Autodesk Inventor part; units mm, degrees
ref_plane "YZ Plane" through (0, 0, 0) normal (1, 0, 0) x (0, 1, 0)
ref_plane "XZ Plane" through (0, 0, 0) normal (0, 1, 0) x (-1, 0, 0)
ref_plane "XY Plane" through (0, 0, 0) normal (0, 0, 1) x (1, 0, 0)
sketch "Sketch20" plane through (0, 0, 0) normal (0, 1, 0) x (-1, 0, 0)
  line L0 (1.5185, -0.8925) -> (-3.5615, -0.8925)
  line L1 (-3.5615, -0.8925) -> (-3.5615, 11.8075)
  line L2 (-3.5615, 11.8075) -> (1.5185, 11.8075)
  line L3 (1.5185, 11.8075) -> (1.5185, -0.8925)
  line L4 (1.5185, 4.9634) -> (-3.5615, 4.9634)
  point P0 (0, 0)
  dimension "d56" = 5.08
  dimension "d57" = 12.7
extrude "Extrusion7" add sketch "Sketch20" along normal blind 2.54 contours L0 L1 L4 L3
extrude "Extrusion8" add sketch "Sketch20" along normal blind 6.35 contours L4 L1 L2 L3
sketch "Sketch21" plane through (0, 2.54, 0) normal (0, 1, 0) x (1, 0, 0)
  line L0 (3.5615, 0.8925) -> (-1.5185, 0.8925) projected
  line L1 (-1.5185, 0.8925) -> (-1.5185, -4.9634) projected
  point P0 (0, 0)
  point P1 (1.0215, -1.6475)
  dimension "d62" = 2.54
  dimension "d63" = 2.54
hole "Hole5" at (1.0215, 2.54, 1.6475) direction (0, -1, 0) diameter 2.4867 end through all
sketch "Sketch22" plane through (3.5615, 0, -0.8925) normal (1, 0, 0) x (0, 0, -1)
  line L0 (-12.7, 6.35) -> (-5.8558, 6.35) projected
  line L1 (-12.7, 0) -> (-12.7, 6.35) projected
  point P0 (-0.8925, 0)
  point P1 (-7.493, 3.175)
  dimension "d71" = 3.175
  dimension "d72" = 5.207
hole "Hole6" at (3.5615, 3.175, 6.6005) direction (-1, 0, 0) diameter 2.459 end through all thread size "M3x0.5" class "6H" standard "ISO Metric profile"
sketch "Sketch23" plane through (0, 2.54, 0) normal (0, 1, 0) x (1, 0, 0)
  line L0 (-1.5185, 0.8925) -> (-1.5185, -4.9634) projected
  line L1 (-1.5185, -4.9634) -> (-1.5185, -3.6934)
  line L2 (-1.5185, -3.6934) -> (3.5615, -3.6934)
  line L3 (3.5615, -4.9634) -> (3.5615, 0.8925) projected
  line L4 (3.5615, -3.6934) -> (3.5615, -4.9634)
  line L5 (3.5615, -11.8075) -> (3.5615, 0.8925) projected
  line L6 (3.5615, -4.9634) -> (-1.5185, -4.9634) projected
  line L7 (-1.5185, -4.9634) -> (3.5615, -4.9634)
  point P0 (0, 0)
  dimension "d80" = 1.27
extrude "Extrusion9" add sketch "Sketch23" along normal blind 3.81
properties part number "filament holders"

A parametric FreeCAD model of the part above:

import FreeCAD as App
import Part
import Sketcher

V = App.Vector
Q = App.Units.Quantity


def add_polygon(sketch, points):
    """Adds a closed chain of lines whose ends are joined by coincident constraints."""
    first, n = sketch.GeometryCount, len(points)
    for a, b in zip(points, points[1:] + points[:1]):
        sketch.addGeometry(Part.LineSegment(App.Vector(*a, 0), App.Vector(*b, 0)), False)
    for i in range(n):
        sketch.addConstraint(Sketcher.Constraint("Coincident", first + i, 2, first + (i + 1) % n, 1))

doc = App.newDocument("Part")
params = doc.addObject("Spreadsheet::Sheet", "Params")
for row, (alias, value) in enumerate([
    ("sketch1_width", "0.2 in"),
    ("pad1_length", "0.1 in"),
    ("sketch2_width", "0.2 in"),
    ("pad2_length", "0.25 in"),
    ("hole_diameter", "0.0979016 in"),
    ("hole2_diameter", "0.096811 in"),
    ("sketch5_height", "0.05 in"),
    ("sketch5_width", "0.2 in"),
    ("pad3_length", "0.15 in"),
], start=1):
    params.set(f"A{row}", alias)
    params.set(f"B{row}", "=" + value)
    params.setAlias(f"B{row}", alias)

body = doc.addObject("PartDesign::Body", "Body")

# Sketch on XZ plane
sketch1 = body.newObject("Sketcher::SketchObject", "Sketch")
sketch1.AttachmentSupport = (doc.getObject("XZ_Plane"), [""])
sketch1.MapMode = "FlatFace"
add_polygon(sketch1, [(4, -1), (-2, -1), (-2, 5), (4, 5)])  # lines 0-3
sketch1.addConstraint(Sketcher.Constraint("Horizontal", 0))
sketch1.addConstraint(Sketcher.Constraint("Vertical", 1))
sketch1.addConstraint(Sketcher.Constraint("Horizontal", 2))
sketch1.addConstraint(Sketcher.Constraint("Vertical", 3))
sketch1.addConstraint(Sketcher.Constraint("DistanceX", 0, 2, 0, 1, Q("0.2 in")))
sketch1.addConstraint(Sketcher.Constraint("DistanceY", 1, 1, 1, 2, 5.856))
sketch1.addConstraint(Sketcher.Constraint("DistanceY", -1, 1, 1, 2, Q("0.1954 in")))
sketch1.addConstraint(Sketcher.Constraint("DistanceX", 0, 2, -1, 1, 1.5185))
sketch1.setExpression("Constraints[8]", "Params.sketch1_width")
pad1 = body.newObject("PartDesign::Pad", "Pad")
pad1.Profile = sketch1
pad1.setExpression("Length", "Params.pad1_length")
pad1.Reversed = True

# Sketch on XZ plane
sketch2 = body.newObject("Sketcher::SketchObject", "Sketch001")
sketch2.AttachmentSupport = (doc.getObject("XZ_Plane"), [""])
sketch2.MapMode = "FlatFace"
add_polygon(sketch2, [(4, 5), (-2, 5), (-2, 12), (4, 12)])  # lines 0-3
sketch2.addConstraint(Sketcher.Constraint("Horizontal", 0))
sketch2.addConstraint(Sketcher.Constraint("Vertical", 1))
sketch2.addConstraint(Sketcher.Constraint("Horizontal", 2))
sketch2.addConstraint(Sketcher.Constraint("Vertical", 3))
sketch2.addConstraint(Sketcher.Constraint("DistanceX", 0, 2, 0, 1, Q("0.2 in")))
sketch2.addConstraint(Sketcher.Constraint("DistanceY", 1, 1, 1, 2, 6.844))
sketch2.addConstraint(Sketcher.Constraint("DistanceY", -1, 1, 0, 2, Q("0.1954 in")))
sketch2.addConstraint(Sketcher.Constraint("DistanceX", 0, 2, -1, 1, 1.5185))
sketch2.setExpression("Constraints[8]", "Params.sketch2_width")
pad2 = body.newObject("PartDesign::Pad", "Pad001")
pad2.Profile = sketch2
pad2.setExpression("Length", "Params.pad2_length")
pad2.Reversed = True

# Sketch on XZ plane
sketch3 = body.newObject("Sketcher::SketchObject", "Sketch002")
sketch3.AttachmentSupport = (doc.getObject("XZ_Plane"), [""])
sketch3.MapMode = "FlatFace"
sketch3.AttachmentOffset = App.Placement(V(0, 0, -0.1 * 25.4), App.Rotation())
sketch3.addGeometry(Part.Circle(V(1, 1.6, 0), V(0, 0, 1), 1.2), False)
sketch3.addConstraint(Sketcher.Constraint("Diameter", 0, Q("0.0979 in")))
sketch3.addConstraint(Sketcher.Constraint("DistanceX", -1, 1, 0, 3, 1.0215))
sketch3.addConstraint(Sketcher.Constraint("DistanceY", -1, 1, 0, 3, 1.6475))
doc.recompute()
hole = body.newObject("PartDesign::Hole", "Hole")
hole.Profile = sketch3
hole.ThreadType = "None"
hole.setExpression("Diameter", "Params.hole_diameter")
hole.DepthType = "ThroughAll"
hole.Reversed = True

# Sketch on YZ plane
sketch4 = body.newObject("Sketcher::SketchObject", "Sketch003")
sketch4.AttachmentSupport = (doc.getObject("YZ_Plane"), [""])
sketch4.MapMode = "FlatFace"
sketch4.AttachmentOffset = App.Placement(V(0, 0, 3.5615), App.Rotation())
sketch4.addGeometry(Part.Circle(V(3.2, 6.6, 0), V(0, 0, 1), 1.2), False)
sketch4.addConstraint(Sketcher.Constraint("Diameter", 0, Q("0.0968 in")))
sketch4.addConstraint(Sketcher.Constraint("DistanceX", -1, 1, 0, 3, Q("0.125 in")))
sketch4.addConstraint(Sketcher.Constraint("DistanceY", -1, 1, 0, 3, 6.6005))
doc.recompute()
hole2 = body.newObject("PartDesign::Hole", "Hole001")
hole2.Profile = sketch4
hole2.ThreadType = "None"
hole2.setExpression("Diameter", "Params.hole2_diameter")
hole2.DepthType = "ThroughAll"

# Sketch on XZ plane
sketch5 = body.newObject("Sketcher::SketchObject", "Sketch004")
sketch5.AttachmentSupport = (doc.getObject("XZ_Plane"), [""])
sketch5.MapMode = "FlatFace"
sketch5.AttachmentOffset = App.Placement(V(0, 0, -0.1 * 25.4), App.Rotation())
add_polygon(sketch5, [(3.6, 3.7), (-1.5, 3.7), (-1.5, 5), (3.6, 5)])  # lines 0-3
sketch5.addConstraint(Sketcher.Constraint("Horizontal", 0))
sketch5.addConstraint(Sketcher.Constraint("Vertical", 1))
sketch5.addConstraint(Sketcher.Constraint("Horizontal", 2))
sketch5.addConstraint(Sketcher.Constraint("Vertical", 3))
sketch5.addConstraint(Sketcher.Constraint("DistanceY", 1, 1, 1, 2, Q("0.05 in")))
sketch5.addConstraint(Sketcher.Constraint("DistanceX", 0, 2, 0, 1, Q("0.2 in")))
sketch5.addConstraint(Sketcher.Constraint("DistanceY", -1, 1, 0, 2, Q("0.1454 in")))
sketch5.addConstraint(Sketcher.Constraint("DistanceX", 0, 2, -1, 1, 1.5185))
sketch5.setExpression("Constraints[8]", "Params.sketch5_height")
sketch5.setExpression("Constraints[9]", "Params.sketch5_width")
pad3 = body.newObject("PartDesign::Pad", "Pad002")
pad3.Profile = sketch5
pad3.setExpression("Length", "Params.pad3_length")
pad3.Reversed = True

doc.recompute()
